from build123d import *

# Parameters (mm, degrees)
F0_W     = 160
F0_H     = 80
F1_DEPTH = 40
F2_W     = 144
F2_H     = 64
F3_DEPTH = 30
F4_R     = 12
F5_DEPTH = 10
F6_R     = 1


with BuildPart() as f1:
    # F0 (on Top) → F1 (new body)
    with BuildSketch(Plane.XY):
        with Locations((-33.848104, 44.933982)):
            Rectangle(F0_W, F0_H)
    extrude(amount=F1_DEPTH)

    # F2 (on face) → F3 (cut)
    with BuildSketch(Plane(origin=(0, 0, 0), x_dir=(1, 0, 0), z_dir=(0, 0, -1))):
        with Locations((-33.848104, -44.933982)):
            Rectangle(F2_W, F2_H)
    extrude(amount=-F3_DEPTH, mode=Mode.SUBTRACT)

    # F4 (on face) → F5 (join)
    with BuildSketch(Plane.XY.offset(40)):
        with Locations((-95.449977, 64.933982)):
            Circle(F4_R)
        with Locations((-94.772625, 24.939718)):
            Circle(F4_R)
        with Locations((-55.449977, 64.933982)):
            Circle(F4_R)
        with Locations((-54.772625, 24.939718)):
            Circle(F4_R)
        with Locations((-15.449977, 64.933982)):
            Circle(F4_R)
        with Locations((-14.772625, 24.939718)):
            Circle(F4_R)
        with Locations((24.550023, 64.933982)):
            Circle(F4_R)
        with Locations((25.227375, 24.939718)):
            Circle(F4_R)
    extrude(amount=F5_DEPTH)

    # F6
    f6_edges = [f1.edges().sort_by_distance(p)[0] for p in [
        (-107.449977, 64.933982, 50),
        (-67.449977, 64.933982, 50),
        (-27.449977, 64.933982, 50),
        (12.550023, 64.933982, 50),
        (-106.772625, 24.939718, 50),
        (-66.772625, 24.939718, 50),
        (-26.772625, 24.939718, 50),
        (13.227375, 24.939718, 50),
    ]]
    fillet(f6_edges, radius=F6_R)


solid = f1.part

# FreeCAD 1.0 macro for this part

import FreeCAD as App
import Part
import Sketcher

V = App.Vector
Q = App.Units.Quantity


def edges_at(feature, points):
    """Names of the edges that pass closest to the given points."""
    edges = feature.Shape.Edges
    near = lambda p: min(range(len(edges)), key=lambda i: edges[i].distToShape(Part.Vertex(*p))[0])
    return sorted({f"Edge{near(p) + 1}" for p in points})

doc = App.newDocument("Part")
body = doc.addObject("PartDesign::Body", "Body")

# Sketch on XY plane
sketch1 = body.newObject("Sketcher::SketchObject", "Sketch")
sketch1.AttachmentSupport = (doc.getObject("XY_Plane"), [""])
sketch1.MapMode = "FlatFace"
sketch1.addGeometry([
    Part.LineSegment(V(-114, 85, 0), V(-114, 5, 0)),
    Part.LineSegment(V(-114, 5, 0), V(46, 5, 0)),
    Part.LineSegment(V(46, 5, 0), V(46, 85, 0)),
    Part.LineSegment(V(46, 85, 0), V(-114, 85, 0)),
], False)
sketch1.addConstraint([
    Sketcher.Constraint("Coincident", 0, 2, 1, 1),
    Sketcher.Constraint("Coincident", 1, 2, 2, 1),
    Sketcher.Constraint("Coincident", 2, 2, 3, 1),
    Sketcher.Constraint("Coincident", 3, 2, 0, 1),
    Sketcher.Constraint("Vertical", 0),
    Sketcher.Constraint("Horizontal", 1),
    Sketcher.Constraint("Vertical", 2),
    Sketcher.Constraint("Horizontal", 3),
    Sketcher.Constraint("DistanceX", 1, 1, 1, 2, Q("160 mm")),
    Sketcher.Constraint("DistanceY", 0, 2, 0, 1, Q("80 mm")),
    Sketcher.Constraint("DistanceY", -1, 1, 2, 2, Q("84.933982 mm")),
    Sketcher.Constraint("DistanceX", 0, 2, -1, 1, Q("113.848104 mm")),
])
pad1 = body.newObject("PartDesign::Pad", "Pad")
pad1.Profile = sketch1
pad1.Length = 40

# Sketch on XY plane
sketch2 = body.newObject("Sketcher::SketchObject", "Sketch001")
sketch2.AttachmentSupport = (doc.getObject("XY_Plane"), [""])
sketch2.MapMode = "FlatFace"
sketch2.addGeometry([
    Part.LineSegment(V(-106, 13, 0), V(-106, 77, 0)),
    Part.LineSegment(V(-106, 77, 0), V(38, 77, 0)),
    Part.LineSegment(V(38, 77, 0), V(38, 13, 0)),
    Part.LineSegment(V(38, 13, 0), V(-106, 13, 0)),
], False)
sketch2.addConstraint([
    Sketcher.Constraint("Coincident", 0, 2, 1, 1),
    Sketcher.Constraint("Coincident", 1, 2, 2, 1),
    Sketcher.Constraint("Coincident", 2, 2, 3, 1),
    Sketcher.Constraint("Coincident", 3, 2, 0, 1),
    Sketcher.Constraint("Vertical", 0),
    Sketcher.Constraint("Horizontal", 1),
    Sketcher.Constraint("Vertical", 2),
    Sketcher.Constraint("Horizontal", 3),
    Sketcher.Constraint("DistanceX", 1, 1, 1, 2, Q("144 mm")),
    Sketcher.Constraint("DistanceY", 0, 1, 0, 2, Q("64 mm")),
    Sketcher.Constraint("DistanceY", -1, 1, 0, 2, Q("76.933982 mm")),
    Sketcher.Constraint("DistanceX", 0, 2, -1, 1, Q("105.848104 mm")),
])
pocket1 = body.newObject("PartDesign::Pocket", "Pocket")
pocket1.Profile = sketch2
pocket1.Length = 30
pocket1.Reversed = True

# Sketch on XY plane
sketch3 = body.newObject("Sketcher::SketchObject", "Sketch002")
sketch3.AttachmentSupport = (doc.getObject("XY_Plane"), [""])
sketch3.MapMode = "FlatFace"
sketch3.AttachmentOffset = App.Placement(V(0, 0, 40), App.Rotation())
sketch3.addGeometry([
    Part.Circle(V(-95, 65, 0), V(0, 0, 1), 12),  # 0
    Part.Circle(V(-95, 25, 0), V(0, 0, 1), 12),  # 1
    Part.Circle(V(-55, 65, 0), V(0, 0, 1), 12),  # 2
    Part.Circle(V(-55, 25, 0), V(0, 0, 1), 12),  # 3
    Part.Circle(V(-15, 65, 0), V(0, 0, 1), 12),  # 4
    Part.Circle(V(-15, 25, 0), V(0, 0, 1), 12),  # 5
    Part.Circle(V(25, 65, 0), V(0, 0, 1), 12),  # 6
    Part.Circle(V(25, 25, 0), V(0, 0, 1), 12),  # 7
], False)
sketch3.addConstraint([
    Sketcher.Constraint("Equal", 0, 1),
    Sketcher.Constraint("Equal", 1, 2),
    Sketcher.Constraint("Equal", 2, 3),
    Sketcher.Constraint("Equal", 3, 4),
    Sketcher.Constraint("Equal", 4, 5),
    Sketcher.Constraint("Equal", 5, 6),
    Sketcher.Constraint("Equal", 6, 7),
    Sketcher.Constraint("Horizontal", 0, 3, 2, 3),
    Sketcher.Constraint("Horizontal", 1, 3, 3, 3),
    Sketcher.Constraint("Horizontal", 2, 3, 4, 3),
    Sketcher.Constraint("Horizontal", 3, 3, 5, 3),
    Sketcher.Constraint("Horizontal", 4, 3, 6, 3),
    Sketcher.Constraint("Horizontal", 5, 3, 7, 3),
    Sketcher.Constraint("Diameter", 0, Q("24 mm")),
    Sketcher.Constraint("DistanceX", 0, 3, 2, 3, Q("40 mm")),
    Sketcher.Constraint("DistanceX", 1, 3, 3, 3, Q("40 mm")),
    Sketcher.Constraint("DistanceX", 2, 3, 4, 3, Q("40 mm")),
    Sketcher.Constraint("DistanceX", 3, 3, 5, 3, Q("40 mm")),
    Sketcher.Constraint("DistanceX", 4, 3, 6, 3, Q("40 mm")),
    Sketcher.Constraint("DistanceX", 5, 3, 7, 3, Q("40 mm")),
    Sketcher.Constraint("DistanceY", -1, 1, 0, 3, Q("64.933982 mm")),
    Sketcher.Constraint("DistanceX", 0, 3, 1, 3, Q("0.677352 mm")),
    Sketcher.Constraint("DistanceX", 0, 3, -1, 1, Q("95.449977 mm")),
    Sketcher.Constraint("DistanceY", -1, 1, 1, 3, Q("24.939718 mm")),
])
pad2 = body.newObject("PartDesign::Pad", "Pad001")
pad2.Profile = sketch3
pad2.Length = 10
doc.recompute()

fillet = body.newObject("PartDesign::Fillet", "Fillet")
fillet.Base = (pad2, edges_at(pad2, [
    (-107.45, 64.934, 50),
    (-67.45, 64.934, 50),
    (-27.45, 64.934, 50),
    (12.55, 64.934, 50),
    (-106.773, 24.94, 50),
    (-66.773, 24.94, 50),
    (-26.773, 24.94, 50),
    (13.227, 24.94, 50),
]))
fillet.Radius = 1

doc.recompute()
